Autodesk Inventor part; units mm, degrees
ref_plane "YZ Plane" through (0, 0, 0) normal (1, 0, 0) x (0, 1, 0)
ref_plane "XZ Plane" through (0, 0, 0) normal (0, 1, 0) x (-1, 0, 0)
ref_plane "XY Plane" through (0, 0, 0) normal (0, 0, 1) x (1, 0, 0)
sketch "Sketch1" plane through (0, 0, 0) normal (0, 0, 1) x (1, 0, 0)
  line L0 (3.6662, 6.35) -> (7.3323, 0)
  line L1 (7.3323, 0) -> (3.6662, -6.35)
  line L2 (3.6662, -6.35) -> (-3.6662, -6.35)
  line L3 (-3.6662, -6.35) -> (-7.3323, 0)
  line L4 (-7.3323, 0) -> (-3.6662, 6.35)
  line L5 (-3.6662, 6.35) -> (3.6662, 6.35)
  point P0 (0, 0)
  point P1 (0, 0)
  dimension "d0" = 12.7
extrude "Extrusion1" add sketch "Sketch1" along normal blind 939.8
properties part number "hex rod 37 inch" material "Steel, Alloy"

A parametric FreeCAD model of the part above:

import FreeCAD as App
import Part
import Sketcher

V = App.Vector
Q = App.Units.Quantity

doc = App.newDocument("Part")
params = doc.addObject("Spreadsheet::Sheet", "Params")
for row, (alias, value) in enumerate([
    ("pad1_length", "37 in"),
], start=1):
    params.set(f"A{row}", alias)
    params.set(f"B{row}", "=" + value)
    params.setAlias(f"B{row}", alias)

body = doc.addObject("PartDesign::Body", "Body")

sketch1 = body.newObject("Sketcher::SketchObject", "Sketch")
sketch1.AttachmentSupport = (doc.getObject("XY_Plane"), [""])
sketch1.MapMode = "FlatFace"
sketch1.addGeometry([
    Part.LineSegment(V(7, 0, 0), V(4, 6, 0)),
    Part.LineSegment(V(4, 6, 0), V(-4, 6, 0)),
    Part.LineSegment(V(-4, 6, 0), V(-7, 0, 0)),
    Part.LineSegment(V(-7, 0, 0), V(-4, -6, 0)),
    Part.LineSegment(V(-4, -6, 0), V(4, -6, 0)),
    Part.LineSegment(V(4, -6, 0), V(7, 0, 0)),
], False)
sketch1.addConstraint([
    Sketcher.Constraint("Coincident", 0, 2, 1, 1),
    Sketcher.Constraint("Coincident", 1, 2, 2, 1),
    Sketcher.Constraint("Coincident", 2, 2, 3, 1),
    Sketcher.Constraint("Coincident", 3, 2, 4, 1),
    Sketcher.Constraint("Coincident", 4, 2, 5, 1),
    Sketcher.Constraint("Coincident", 5, 2, 0, 1),
    Sketcher.Constraint("Horizontal", 1),
    Sketcher.Constraint("Horizontal", 4),
    Sketcher.Constraint("Symmetric", 0, 2, 3, 2, -1, 1),
    Sketcher.Constraint("Symmetric", 2, 2, 5, 2, -1, 1),
    Sketcher.Constraint("PointOnObject", 2, 2, -1),
    Sketcher.Constraint("Parallel", 2, 5),
    Sketcher.Constraint("Vertical", 1, 2, 3, 2),
    Sketcher.Constraint("DistanceY", 3, 2, 1, 2, Q("0.5 in")),
    Sketcher.Constraint("Angle", 0, Q("119.9995 deg")),
    Sketcher.Constraint("DistanceX", 2, 2, 0, 2, Q("0.433 in")),
])
pad1 = body.newObject("PartDesign::Pad", "Pad")
pad1.Profile = sketch1
pad1.setExpression("Length", "Params.pad1_length")

doc.recompute()
